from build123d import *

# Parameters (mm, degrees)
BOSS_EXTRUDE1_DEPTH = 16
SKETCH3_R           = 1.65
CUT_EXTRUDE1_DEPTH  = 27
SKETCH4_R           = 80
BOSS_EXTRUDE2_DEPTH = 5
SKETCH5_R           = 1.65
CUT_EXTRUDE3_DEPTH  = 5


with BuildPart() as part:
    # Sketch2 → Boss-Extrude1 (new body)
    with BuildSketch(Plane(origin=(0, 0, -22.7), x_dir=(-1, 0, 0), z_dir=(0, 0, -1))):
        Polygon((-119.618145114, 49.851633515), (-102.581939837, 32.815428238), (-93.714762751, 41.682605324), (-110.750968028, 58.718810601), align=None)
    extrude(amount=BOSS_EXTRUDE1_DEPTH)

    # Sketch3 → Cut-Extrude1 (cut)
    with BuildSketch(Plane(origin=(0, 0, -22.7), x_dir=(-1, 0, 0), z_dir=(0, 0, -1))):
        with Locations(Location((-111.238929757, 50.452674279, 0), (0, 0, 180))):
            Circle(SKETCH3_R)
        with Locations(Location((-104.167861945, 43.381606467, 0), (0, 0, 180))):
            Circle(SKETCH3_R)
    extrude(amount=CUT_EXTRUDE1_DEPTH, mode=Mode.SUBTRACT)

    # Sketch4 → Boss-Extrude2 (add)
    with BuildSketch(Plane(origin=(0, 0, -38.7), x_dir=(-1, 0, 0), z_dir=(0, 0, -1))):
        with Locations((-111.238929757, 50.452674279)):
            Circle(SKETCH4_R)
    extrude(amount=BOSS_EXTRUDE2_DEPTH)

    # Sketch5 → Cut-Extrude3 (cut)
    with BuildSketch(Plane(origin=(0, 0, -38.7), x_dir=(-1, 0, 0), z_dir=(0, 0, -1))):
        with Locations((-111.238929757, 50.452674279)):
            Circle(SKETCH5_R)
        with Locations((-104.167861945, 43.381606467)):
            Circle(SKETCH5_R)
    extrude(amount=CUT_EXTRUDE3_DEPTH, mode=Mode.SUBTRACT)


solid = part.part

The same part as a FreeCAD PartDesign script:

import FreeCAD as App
import Part
import Sketcher
Q = App.Units.Quantity

doc = App.newDocument("Part")
body = doc.addObject("PartDesign::Body", "Body")

sketch1 = body.newObject("Sketcher::SketchObject", "Sketch")
sketch1.AttachmentSupport = (doc.getObject("XY_Plane"), [""])
sketch1.MapMode = "FlatFace"
sketch1.AttachmentOffset = App.Placement(App.Vector(0, 0, -22.7), App.Rotation())
sketch1.addGeometry([
    Part.LineSegment(App.Vector(120, 50, 0), App.Vector(103, 33, 0)),
    Part.LineSegment(App.Vector(103, 33, 0), App.Vector(94, 42, 0)),
    Part.LineSegment(App.Vector(94, 42, 0), App.Vector(111, 59, 0)),
    Part.LineSegment(App.Vector(111, 59, 0), App.Vector(120, 50, 0)),
], False)
sketch1.addConstraint([
    Sketcher.Constraint("Coincident", 0, 2, 1, 1),
    Sketcher.Constraint("Coincident", 1, 2, 2, 1),
    Sketcher.Constraint("Coincident", 2, 2, 3, 1),
    Sketcher.Constraint("Coincident", 3, 2, 0, 1),
    Sketcher.Constraint("Perpendicular", 0, 1),
    Sketcher.Constraint("Perpendicular", 1, 2),
    Sketcher.Constraint("Perpendicular", 2, 3),
    Sketcher.Constraint("Angle", 0, Q("-135 deg")),
    Sketcher.Constraint("DistanceX", -1, 1, 0, 2, Q("102.58194 mm")),
    Sketcher.Constraint("DistanceY", -1, 1, 0, 2, Q("32.815428 mm")),
    Sketcher.Constraint("DistanceX", -1, 1, 2, 2, Q("110.750968 mm")),
    Sketcher.Constraint("DistanceY", -1, 1, 2, 2, Q("58.718811 mm")),
])
pad1 = body.newObject("PartDesign::Pad", "Pad")
pad1.Profile = sketch1
pad1.Length = 16
pad1.Reversed = True

sketch2 = body.newObject("Sketcher::SketchObject", "Sketch001")
sketch2.AttachmentSupport = (doc.getObject("XY_Plane"), [""])
sketch2.MapMode = "FlatFace"
sketch2.AttachmentOffset = App.Placement(App.Vector(0, 0, -22.7), App.Rotation())
sketch2.addGeometry([
    Part.Circle(App.Vector(111.2, 50.5, 0), App.Vector(0, 0, 1), 1.6),
    Part.Circle(App.Vector(104.2, 43.4, 0), App.Vector(0, 0, 1), 1.6),
], False)
sketch2.addConstraint([
    Sketcher.Constraint("Equal", 0, 1),
    Sketcher.Constraint("Diameter", 0, Q("3.3 mm")),
    Sketcher.Constraint("DistanceX", -1, 1, 0, 3, Q("111.23893 mm")),
    Sketcher.Constraint("DistanceX", -1, 1, 1, 3, Q("104.167862 mm")),
    Sketcher.Constraint("DistanceY", -1, 1, 0, 3, Q("50.452674 mm")),
    Sketcher.Constraint("DistanceY", -1, 1, 1, 3, Q("43.381606 mm")),
])
pocket1 = body.newObject("PartDesign::Pocket", "Pocket")
pocket1.Profile = sketch2
pocket1.Length = 27

sketch3 = body.newObject("Sketcher::SketchObject", "Sketch002")
sketch3.AttachmentSupport = (doc.getObject("XY_Plane"), [""])
sketch3.MapMode = "FlatFace"
sketch3.AttachmentOffset = App.Placement(App.Vector(0, 0, -38.7), App.Rotation())
sketch3.addGeometry(Part.Circle(App.Vector(111, 50, 0), App.Vector(0, 0, 1), 80), False)
sketch3.addConstraint([
    Sketcher.Constraint("Diameter", 0, Q("160 mm")),
    Sketcher.Constraint("DistanceX", -1, 1, 0, 3, Q("111.23893 mm")),
    Sketcher.Constraint("DistanceY", -1, 1, 0, 3, Q("50.452674 mm")),
])
pad2 = body.newObject("PartDesign::Pad", "Pad001")
pad2.Profile = sketch3
pad2.Length = 5
pad2.Reversed = True

sketch4 = body.newObject("Sketcher::SketchObject", "Sketch003")
sketch4.AttachmentSupport = (doc.getObject("XY_Plane"), [""])
sketch4.MapMode = "FlatFace"
sketch4.AttachmentOffset = App.Placement(App.Vector(0, 0, -38.7), App.Rotation())
sketch4.addGeometry([
    Part.Circle(App.Vector(111.2, 50.5, 0), App.Vector(0, 0, 1), 1.6),
    Part.Circle(App.Vector(104.2, 43.4, 0), App.Vector(0, 0, 1), 1.6),
], False)
sketch4.addConstraint([
    Sketcher.Constraint("Equal", 0, 1),
    Sketcher.Constraint("Diameter", 0, Q("3.3 mm")),
    Sketcher.Constraint("DistanceX", -1, 1, 0, 3, Q("111.23893 mm")),
    Sketcher.Constraint("DistanceX", -1, 1, 1, 3, Q("104.167862 mm")),
    Sketcher.Constraint("DistanceY", -1, 1, 0, 3, Q("50.452674 mm")),
    Sketcher.Constraint("DistanceY", -1, 1, 1, 3, Q("43.381606 mm")),
])
pocket2 = body.newObject("PartDesign::Pocket", "Pocket001")
pocket2.Profile = sketch4
pocket2.Length = 5

doc.recompute()
